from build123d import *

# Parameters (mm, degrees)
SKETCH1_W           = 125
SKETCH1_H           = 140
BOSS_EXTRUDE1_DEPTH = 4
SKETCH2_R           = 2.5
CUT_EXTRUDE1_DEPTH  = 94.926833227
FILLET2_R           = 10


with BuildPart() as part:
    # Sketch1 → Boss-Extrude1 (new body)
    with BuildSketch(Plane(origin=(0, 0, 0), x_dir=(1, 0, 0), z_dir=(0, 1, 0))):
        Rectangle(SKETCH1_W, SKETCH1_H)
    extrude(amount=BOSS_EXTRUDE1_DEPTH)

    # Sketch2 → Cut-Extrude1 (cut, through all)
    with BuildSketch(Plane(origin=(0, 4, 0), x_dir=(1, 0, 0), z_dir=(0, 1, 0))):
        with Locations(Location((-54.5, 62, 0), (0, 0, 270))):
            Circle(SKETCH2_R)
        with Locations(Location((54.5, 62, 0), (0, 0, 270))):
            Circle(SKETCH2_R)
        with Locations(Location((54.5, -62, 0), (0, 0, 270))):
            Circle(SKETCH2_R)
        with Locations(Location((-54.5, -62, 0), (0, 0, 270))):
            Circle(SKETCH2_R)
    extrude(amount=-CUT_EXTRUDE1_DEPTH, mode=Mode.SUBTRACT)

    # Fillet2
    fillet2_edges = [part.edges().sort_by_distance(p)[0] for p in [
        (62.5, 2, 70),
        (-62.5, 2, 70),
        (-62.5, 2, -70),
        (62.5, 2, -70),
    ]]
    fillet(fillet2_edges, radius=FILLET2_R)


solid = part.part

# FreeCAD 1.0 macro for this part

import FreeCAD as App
import Part
import Sketcher


def edges_at(feature, points):
    """Names of the edges that pass closest to the given points."""
    edges = feature.Shape.Edges
    near = lambda p: min(range(len(edges)), key=lambda i: edges[i].distToShape(Part.Vertex(*p))[0])
    return sorted({f"Edge{near(p) + 1}" for p in points})

doc = App.newDocument("Part")
params = doc.addObject("Spreadsheet::Sheet", "Params")
for row, (alias, value) in enumerate([
    ("sketch1_width", "125 mm"),
    ("sketch1_height", "140 mm"),
    ("pad1_length", "4 mm"),
    ("sketch2_diameter", "5 mm"),
    ("fillet_radius", "10 mm"),
], start=1):
    params.set(f"A{row}", alias)
    params.set(f"B{row}", "=" + value)
    params.setAlias(f"B{row}", alias)

body = doc.addObject("PartDesign::Body", "Body")

# Sketch on XZ plane
sketch1 = doc.addObject("Sketcher::SketchObject", "Sketch")
body.addObject(sketch1)
sketch1.AttachmentSupport = (doc.XZ_Plane, [""])
sketch1.MapMode = "FlatFace"
sketch1.addGeometry(Part.LineSegment(App.Vector(-62, -70, 0), App.Vector(-62, 70, 0)), False)
sketch1.addGeometry(Part.LineSegment(App.Vector(-62, 70, 0), App.Vector(62, 70, 0)), False)
sketch1.addGeometry(Part.LineSegment(App.Vector(62, 70, 0), App.Vector(62, -70, 0)), False)
sketch1.addGeometry(Part.LineSegment(App.Vector(62, -70, 0), App.Vector(-62, -70, 0)), False)
sketch1.addConstraint(Sketcher.Constraint("Coincident", 0, 2, 1, 1))
sketch1.addConstraint(Sketcher.Constraint("Coincident", 1, 2, 2, 1))
sketch1.addConstraint(Sketcher.Constraint("Coincident", 2, 2, 3, 1))
sketch1.addConstraint(Sketcher.Constraint("Coincident", 3, 2, 0, 1))
sketch1.addConstraint(Sketcher.Constraint("Vertical", 0))
sketch1.addConstraint(Sketcher.Constraint("Horizontal", 1))
sketch1.addConstraint(Sketcher.Constraint("Vertical", 2))
sketch1.addConstraint(Sketcher.Constraint("Horizontal", 3))
sketch1.addConstraint(Sketcher.Constraint("Symmetric", 0, 2, 2, 2, -1, 1))
sketch1.addConstraint(Sketcher.Constraint("DistanceX", 1, 1, 1, 2, 125.0))
sketch1.addConstraint(Sketcher.Constraint("DistanceY", 0, 1, 0, 2, 140.0))
sketch1.setExpression("Constraints[9]", "Params.sketch1_width")
sketch1.setExpression("Constraints[10]", "Params.sketch1_height")
pad1 = doc.addObject("PartDesign::Pad", "Pad")
body.addObject(pad1)
pad1.Profile = sketch1
pad1.setExpression("Length", "Params.pad1_length")
pad1.Reversed = True

# Sketch on XZ plane
sketch2 = doc.addObject("Sketcher::SketchObject", "Sketch001")
body.addObject(sketch2)
sketch2.AttachmentSupport = (doc.XZ_Plane, [""])
sketch2.MapMode = "FlatFace"
sketch2.AttachmentOffset = App.Placement(App.Vector(0, 0, -4), App.Rotation())
sketch2.addGeometry(Part.Circle(App.Vector(-54.5, -62, 0), App.Vector(0, 0, 1), 2.5), False)
sketch2.addGeometry(Part.Circle(App.Vector(54.5, -62, 0), App.Vector(0, 0, 1), 2.5), False)
sketch2.addGeometry(Part.Circle(App.Vector(54.5, 62, 0), App.Vector(0, 0, 1), 2.5), False)
sketch2.addGeometry(Part.Circle(App.Vector(-54.5, 62, 0), App.Vector(0, 0, 1), 2.5), False)
sketch2.addConstraint(Sketcher.Constraint("Equal", 0, 1))
sketch2.addConstraint(Sketcher.Constraint("Equal", 1, 2))
sketch2.addConstraint(Sketcher.Constraint("Equal", 2, 3))
sketch2.addConstraint(Sketcher.Constraint("Symmetric", 0, 3, 2, 3, -1, 1))
sketch2.addConstraint(Sketcher.Constraint("Symmetric", 1, 3, 3, 3, -1, 1))
sketch2.addConstraint(Sketcher.Constraint("Symmetric", 0, 3, 1, 3, -2))
sketch2.addConstraint(Sketcher.Constraint("Diameter", 0, 5.0))
sketch2.addConstraint(Sketcher.Constraint("DistanceY", 0, 3, -1, 1, 62.0))
sketch2.addConstraint(Sketcher.Constraint("DistanceX", 0, 3, 1, 3, 109.0))
sketch2.setExpression("Constraints[6]", "Params.sketch2_diameter")
pocket1 = doc.addObject("PartDesign::Pocket", "Pocket")
body.addObject(pocket1)
pocket1.Profile = sketch2
pocket1.Type = "ThroughAll"
pocket1.Reversed = True
doc.recompute()

fillet = doc.addObject("PartDesign::Fillet", "Fillet")
body.addObject(fillet)
fillet.Base = (pocket1, edges_at(pocket1, [
    (62.5, 2, 70),
    (-62.5, 2, 70),
    (-62.5, 2, -70),
    (62.5, 2, -70),
]))
fillet.setExpression("Radius", "Params.fillet_radius")

doc.recompute()
